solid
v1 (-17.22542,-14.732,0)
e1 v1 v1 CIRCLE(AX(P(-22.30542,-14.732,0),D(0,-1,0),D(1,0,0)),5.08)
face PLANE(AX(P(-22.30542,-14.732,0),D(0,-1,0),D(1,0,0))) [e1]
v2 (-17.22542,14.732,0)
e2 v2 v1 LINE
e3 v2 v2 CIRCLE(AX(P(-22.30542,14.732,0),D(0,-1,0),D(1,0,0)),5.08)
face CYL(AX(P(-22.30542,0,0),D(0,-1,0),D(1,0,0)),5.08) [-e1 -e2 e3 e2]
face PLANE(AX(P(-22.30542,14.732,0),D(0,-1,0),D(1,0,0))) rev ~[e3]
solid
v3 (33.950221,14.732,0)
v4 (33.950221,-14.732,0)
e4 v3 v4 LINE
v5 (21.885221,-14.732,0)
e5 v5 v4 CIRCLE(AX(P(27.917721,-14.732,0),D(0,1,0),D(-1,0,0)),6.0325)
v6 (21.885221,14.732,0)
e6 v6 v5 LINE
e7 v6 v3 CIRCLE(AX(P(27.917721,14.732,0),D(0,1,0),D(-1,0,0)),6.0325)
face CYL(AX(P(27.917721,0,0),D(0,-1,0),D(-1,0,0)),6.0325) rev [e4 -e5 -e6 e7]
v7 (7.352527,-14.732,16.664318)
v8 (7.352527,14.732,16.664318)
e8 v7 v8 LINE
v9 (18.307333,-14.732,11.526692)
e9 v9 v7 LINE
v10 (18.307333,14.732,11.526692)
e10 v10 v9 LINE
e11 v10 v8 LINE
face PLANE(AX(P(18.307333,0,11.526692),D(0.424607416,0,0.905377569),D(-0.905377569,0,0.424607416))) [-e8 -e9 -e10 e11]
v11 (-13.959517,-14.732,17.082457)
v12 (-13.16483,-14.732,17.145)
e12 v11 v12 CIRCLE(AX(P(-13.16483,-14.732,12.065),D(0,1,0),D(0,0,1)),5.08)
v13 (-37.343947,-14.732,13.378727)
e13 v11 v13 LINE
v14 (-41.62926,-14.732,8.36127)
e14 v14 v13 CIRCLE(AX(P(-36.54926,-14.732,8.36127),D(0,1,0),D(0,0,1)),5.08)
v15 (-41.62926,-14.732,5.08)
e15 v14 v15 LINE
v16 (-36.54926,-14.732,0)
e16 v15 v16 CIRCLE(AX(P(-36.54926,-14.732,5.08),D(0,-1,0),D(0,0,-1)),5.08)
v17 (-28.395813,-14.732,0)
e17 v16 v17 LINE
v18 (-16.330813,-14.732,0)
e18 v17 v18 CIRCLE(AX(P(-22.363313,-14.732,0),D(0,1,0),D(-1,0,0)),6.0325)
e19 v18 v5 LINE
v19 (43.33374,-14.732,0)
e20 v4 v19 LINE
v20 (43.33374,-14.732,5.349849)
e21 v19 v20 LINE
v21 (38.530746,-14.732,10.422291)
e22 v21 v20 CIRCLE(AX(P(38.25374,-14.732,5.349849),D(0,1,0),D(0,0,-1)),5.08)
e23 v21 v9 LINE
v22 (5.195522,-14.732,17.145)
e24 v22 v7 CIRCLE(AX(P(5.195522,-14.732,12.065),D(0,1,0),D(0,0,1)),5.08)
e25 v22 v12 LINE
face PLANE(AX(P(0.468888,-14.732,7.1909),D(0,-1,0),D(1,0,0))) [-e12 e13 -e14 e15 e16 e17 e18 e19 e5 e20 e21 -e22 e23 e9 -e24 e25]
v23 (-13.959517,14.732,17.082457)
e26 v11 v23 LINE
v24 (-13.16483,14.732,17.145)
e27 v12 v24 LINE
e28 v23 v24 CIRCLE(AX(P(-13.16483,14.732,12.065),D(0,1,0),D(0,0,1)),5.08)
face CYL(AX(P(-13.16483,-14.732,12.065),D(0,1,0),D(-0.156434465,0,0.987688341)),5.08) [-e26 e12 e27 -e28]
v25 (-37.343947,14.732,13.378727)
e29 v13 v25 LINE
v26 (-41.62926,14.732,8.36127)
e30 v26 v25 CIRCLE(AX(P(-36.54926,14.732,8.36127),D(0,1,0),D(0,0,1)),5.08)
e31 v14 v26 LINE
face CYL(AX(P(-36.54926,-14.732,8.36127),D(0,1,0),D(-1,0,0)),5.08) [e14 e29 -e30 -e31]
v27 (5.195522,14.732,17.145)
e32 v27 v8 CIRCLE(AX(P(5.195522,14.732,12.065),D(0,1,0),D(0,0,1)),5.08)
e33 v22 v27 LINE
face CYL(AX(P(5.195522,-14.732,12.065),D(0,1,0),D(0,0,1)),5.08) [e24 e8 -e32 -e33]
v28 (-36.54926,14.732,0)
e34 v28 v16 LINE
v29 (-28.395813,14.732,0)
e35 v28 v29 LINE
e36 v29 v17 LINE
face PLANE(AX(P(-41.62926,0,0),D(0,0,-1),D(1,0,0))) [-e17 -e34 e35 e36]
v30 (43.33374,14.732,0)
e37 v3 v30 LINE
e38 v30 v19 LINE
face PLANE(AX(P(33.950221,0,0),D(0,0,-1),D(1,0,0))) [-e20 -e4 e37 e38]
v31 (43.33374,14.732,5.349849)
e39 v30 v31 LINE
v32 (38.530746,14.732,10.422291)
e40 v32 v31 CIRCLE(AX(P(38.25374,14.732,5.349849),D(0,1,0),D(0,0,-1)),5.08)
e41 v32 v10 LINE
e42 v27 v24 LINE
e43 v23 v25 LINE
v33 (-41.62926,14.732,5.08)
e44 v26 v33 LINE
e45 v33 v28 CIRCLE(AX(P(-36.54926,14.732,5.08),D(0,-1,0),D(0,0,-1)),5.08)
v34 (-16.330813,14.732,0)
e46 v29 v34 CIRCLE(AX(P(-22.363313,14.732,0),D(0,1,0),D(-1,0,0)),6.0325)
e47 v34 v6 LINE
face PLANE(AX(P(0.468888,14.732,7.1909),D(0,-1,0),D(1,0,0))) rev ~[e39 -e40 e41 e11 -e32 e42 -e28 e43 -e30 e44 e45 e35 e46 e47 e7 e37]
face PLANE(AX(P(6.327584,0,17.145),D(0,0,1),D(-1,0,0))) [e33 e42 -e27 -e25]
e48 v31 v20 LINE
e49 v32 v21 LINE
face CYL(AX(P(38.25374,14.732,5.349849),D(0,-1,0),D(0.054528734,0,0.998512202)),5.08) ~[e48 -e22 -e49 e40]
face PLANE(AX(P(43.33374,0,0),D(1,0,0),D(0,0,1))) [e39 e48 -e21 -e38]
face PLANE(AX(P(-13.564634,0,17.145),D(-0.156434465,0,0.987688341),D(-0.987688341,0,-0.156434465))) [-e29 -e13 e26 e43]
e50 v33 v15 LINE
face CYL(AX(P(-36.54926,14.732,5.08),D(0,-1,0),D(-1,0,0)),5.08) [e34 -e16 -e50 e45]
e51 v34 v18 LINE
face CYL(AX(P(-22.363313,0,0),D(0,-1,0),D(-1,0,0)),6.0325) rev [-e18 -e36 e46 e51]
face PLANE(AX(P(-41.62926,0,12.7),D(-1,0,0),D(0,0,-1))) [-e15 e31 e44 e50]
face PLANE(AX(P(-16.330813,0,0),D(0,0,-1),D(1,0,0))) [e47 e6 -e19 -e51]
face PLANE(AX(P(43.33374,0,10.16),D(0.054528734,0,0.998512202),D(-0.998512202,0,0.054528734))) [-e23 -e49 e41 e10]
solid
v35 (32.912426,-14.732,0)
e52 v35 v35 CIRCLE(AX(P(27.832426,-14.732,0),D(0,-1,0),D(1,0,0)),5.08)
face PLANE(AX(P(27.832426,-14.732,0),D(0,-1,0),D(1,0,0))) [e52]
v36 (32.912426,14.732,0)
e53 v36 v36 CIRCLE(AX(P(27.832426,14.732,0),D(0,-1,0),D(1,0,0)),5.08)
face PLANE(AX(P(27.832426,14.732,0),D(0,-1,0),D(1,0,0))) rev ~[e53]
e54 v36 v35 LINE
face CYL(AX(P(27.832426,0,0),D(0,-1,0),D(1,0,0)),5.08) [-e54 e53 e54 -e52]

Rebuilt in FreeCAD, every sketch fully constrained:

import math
import FreeCAD as App
import Part
import Sketcher
from FreeCAD import Vector
Q = App.Units.Quantity


def edges_at(feature, points):
    """Names of the edges that pass closest to the given points."""
    edges = feature.Shape.Edges
    near = lambda p: min(range(len(edges)), key=lambda i: edges[i].distToShape(Part.Vertex(*p))[0])
    return sorted({f"Edge{near(p) + 1}" for p in points})

doc = App.newDocument("Part")
body = doc.addObject("PartDesign::Body", "Body")

# Sketch on XZ plane
sketch1 = body.newObject("Sketcher::SketchObject", "Sketch")
sketch1.AttachmentSupport = (doc.getObject("XZ_Plane"), [""])
sketch1.MapMode = "FlatFace"
sketch1.addGeometry([
    Part.LineSegment(Vector(-41.62926, 12.7, 0), Vector(-41.62926, 0, 0)),  # 0
    Part.LineSegment(Vector(-41.62926, 0, 0), Vector(-28.395813, 0, 0)),  # 1
    Part.ArcOfCircle(Part.Circle(Vector(-22.363313, 0, 0), Vector(0, 0, 1), 6.0325), math.radians(0), math.radians(180)),  # 2
    Part.LineSegment(Vector(-16.330813, 0, 0), Vector(21.885221, 0, 0)),  # 3
    Part.ArcOfCircle(Part.Circle(Vector(27.917721, 0, 0), Vector(0, 0, 1), 6.0325), math.radians(0), math.radians(180)),  # 4
    Part.LineSegment(Vector(33.950221, 0, 0), Vector(43.33374, 0, 0)),  # 5
    Part.LineSegment(Vector(43.33374, 0, 0), Vector(43.33374, 10.16, 0)),  # 6
    Part.LineSegment(Vector(43.33374, 10.16, 0), Vector(18.307333, 11.526692, 0)),  # 7
    Part.LineSegment(Vector(18.307333, 11.526692, 0), Vector(6.327584, 17.145, 0)),  # 8
    Part.LineSegment(Vector(6.327584, 17.145, 0), Vector(-13.564634, 17.145, 0)),  # 9
    Part.LineSegment(Vector(-13.564634, 17.145, 0), Vector(-41.62926, 12.7, 0)),  # 10
], False)
sketch1.addConstraint([
    Sketcher.Constraint("Coincident", 0, 2, 1, 1),
    Sketcher.Constraint("Coincident", 1, 2, 2, 2),
    Sketcher.Constraint("Coincident", 2, 1, 3, 1),
    Sketcher.Constraint("Coincident", 3, 2, 4, 2),
    Sketcher.Constraint("Coincident", 4, 1, 5, 1),
    Sketcher.Constraint("Coincident", 5, 2, 6, 1),
    Sketcher.Constraint("Coincident", 6, 2, 7, 1),
    Sketcher.Constraint("Coincident", 7, 2, 8, 1),
    Sketcher.Constraint("Coincident", 8, 2, 9, 1),
    Sketcher.Constraint("Coincident", 9, 2, 10, 1),
    Sketcher.Constraint("Coincident", 10, 2, 0, 1),
    Sketcher.Constraint("Vertical", 0),
    Sketcher.Constraint("Horizontal", 1),
    Sketcher.Constraint("Horizontal", 3),
    Sketcher.Constraint("Horizontal", 5),
    Sketcher.Constraint("Vertical", 6),
    Sketcher.Constraint("Horizontal", 9),
    Sketcher.Constraint("Equal", 2, 4),
    Sketcher.Constraint("PointOnObject", 2, 3, -1),
    Sketcher.Constraint("PointOnObject", 4, 3, -1),
    Sketcher.Constraint("PointOnObject", 0, 2, -1),
    Sketcher.Constraint("PointOnObject", 2, 1, -1),
    Sketcher.Constraint("PointOnObject", 4, 1, -1),
    Sketcher.Constraint("DistanceY", 0, 2, 0, 1, Q("0.5 in")),
    Sketcher.Constraint("DistanceY", 6, 1, 6, 2, Q("0.4 in")),
    Sketcher.Constraint("Angle", 10, Q("-171 deg")),
    Sketcher.Constraint("Radius", 2, Q("0.2375 in")),
    Sketcher.Constraint("DistanceY", -1, 1, 8, 2, Q("0.675 in")),
    Sketcher.Constraint("DistanceX", 5, 1, 5, 2, Q("9.38352 mm")),
    Sketcher.Constraint("Distance", 8, Q("13.231772 mm")),
    Sketcher.Constraint("DistanceX", 1, 1, 1, 2, Q("13.233447 mm")),
    Sketcher.Constraint("DistanceX", 3, 1, 3, 2, Q("38.216034 mm")),
    Sketcher.Constraint("DistanceX", 9, 2, 9, 1, Q("19.892218 mm")),
    Sketcher.Constraint("DistanceX", -1, 1, 4, 3, Q("27.917721 mm")),
    Sketcher.Constraint("DistanceY", -1, 1, 7, 2, Q("11.526692 mm")),
])
pad1 = body.newObject("PartDesign::Pad", "Pad")
pad1.Profile = sketch1
pad1.Length = Q("1.16 in")
pad1.Midplane = True
doc.recompute()

fillet = body.newObject("PartDesign::Fillet", "Fillet")
fillet.Base = (pad1, edges_at(pad1, [
    (-41.629, 0, 12.7),
    (43.334, 0, 10.16),
    (6.328, 0, 17.145),
    (-13.565, 0, 17.145),
    (-41.629, 0, 0),
]))
fillet.Radius = Q("0.2 in")
body2 = doc.addObject("PartDesign::Body", "Body001")

# Sketch on XZ plane
sketch2 = body2.newObject("Sketcher::SketchObject", "Sketch001")
sketch2.AttachmentSupport = (doc.getObject("XZ_Plane001"), [""])
sketch2.MapMode = "FlatFace"
sketch2.addGeometry(Part.Circle(Vector(-22.30542, 0, 0), Vector(0, 0, 1), 5.08), False)
sketch2.addConstraint([
    Sketcher.Constraint("PointOnObject", 0, 3, -1),
    Sketcher.Constraint("Diameter", 0, Q("0.4 in")),
    Sketcher.Constraint("DistanceX", 0, 3, -1, 1, Q("22.30542 mm")),
])
pad2 = body2.newObject("PartDesign::Pad", "Pad001")
pad2.Profile = sketch2
pad2.Length = Q("1.16 in")
pad2.Midplane = True
body3 = doc.addObject("PartDesign::Body", "Body002")

# Sketch on XZ plane
sketch3 = body3.newObject("Sketcher::SketchObject", "Sketch002")
sketch3.AttachmentSupport = (doc.getObject("XZ_Plane002"), [""])
sketch3.MapMode = "FlatFace"
sketch3.addGeometry(Part.Circle(Vector(27.832426, 0, 0), Vector(0, 0, 1), 5.08), False)
sketch3.addConstraint([
    Sketcher.Constraint("PointOnObject", 0, 3, -1),
    Sketcher.Constraint("Diameter", 0, Q("0.4 in")),
    Sketcher.Constraint("DistanceX", -1, 1, 0, 3, Q("27.832426 mm")),
])
pad3 = body3.newObject("PartDesign::Pad", "Pad002")
pad3.Profile = sketch3
pad3.Length = Q("1.16 in")
pad3.Midplane = True

doc.recompute()
